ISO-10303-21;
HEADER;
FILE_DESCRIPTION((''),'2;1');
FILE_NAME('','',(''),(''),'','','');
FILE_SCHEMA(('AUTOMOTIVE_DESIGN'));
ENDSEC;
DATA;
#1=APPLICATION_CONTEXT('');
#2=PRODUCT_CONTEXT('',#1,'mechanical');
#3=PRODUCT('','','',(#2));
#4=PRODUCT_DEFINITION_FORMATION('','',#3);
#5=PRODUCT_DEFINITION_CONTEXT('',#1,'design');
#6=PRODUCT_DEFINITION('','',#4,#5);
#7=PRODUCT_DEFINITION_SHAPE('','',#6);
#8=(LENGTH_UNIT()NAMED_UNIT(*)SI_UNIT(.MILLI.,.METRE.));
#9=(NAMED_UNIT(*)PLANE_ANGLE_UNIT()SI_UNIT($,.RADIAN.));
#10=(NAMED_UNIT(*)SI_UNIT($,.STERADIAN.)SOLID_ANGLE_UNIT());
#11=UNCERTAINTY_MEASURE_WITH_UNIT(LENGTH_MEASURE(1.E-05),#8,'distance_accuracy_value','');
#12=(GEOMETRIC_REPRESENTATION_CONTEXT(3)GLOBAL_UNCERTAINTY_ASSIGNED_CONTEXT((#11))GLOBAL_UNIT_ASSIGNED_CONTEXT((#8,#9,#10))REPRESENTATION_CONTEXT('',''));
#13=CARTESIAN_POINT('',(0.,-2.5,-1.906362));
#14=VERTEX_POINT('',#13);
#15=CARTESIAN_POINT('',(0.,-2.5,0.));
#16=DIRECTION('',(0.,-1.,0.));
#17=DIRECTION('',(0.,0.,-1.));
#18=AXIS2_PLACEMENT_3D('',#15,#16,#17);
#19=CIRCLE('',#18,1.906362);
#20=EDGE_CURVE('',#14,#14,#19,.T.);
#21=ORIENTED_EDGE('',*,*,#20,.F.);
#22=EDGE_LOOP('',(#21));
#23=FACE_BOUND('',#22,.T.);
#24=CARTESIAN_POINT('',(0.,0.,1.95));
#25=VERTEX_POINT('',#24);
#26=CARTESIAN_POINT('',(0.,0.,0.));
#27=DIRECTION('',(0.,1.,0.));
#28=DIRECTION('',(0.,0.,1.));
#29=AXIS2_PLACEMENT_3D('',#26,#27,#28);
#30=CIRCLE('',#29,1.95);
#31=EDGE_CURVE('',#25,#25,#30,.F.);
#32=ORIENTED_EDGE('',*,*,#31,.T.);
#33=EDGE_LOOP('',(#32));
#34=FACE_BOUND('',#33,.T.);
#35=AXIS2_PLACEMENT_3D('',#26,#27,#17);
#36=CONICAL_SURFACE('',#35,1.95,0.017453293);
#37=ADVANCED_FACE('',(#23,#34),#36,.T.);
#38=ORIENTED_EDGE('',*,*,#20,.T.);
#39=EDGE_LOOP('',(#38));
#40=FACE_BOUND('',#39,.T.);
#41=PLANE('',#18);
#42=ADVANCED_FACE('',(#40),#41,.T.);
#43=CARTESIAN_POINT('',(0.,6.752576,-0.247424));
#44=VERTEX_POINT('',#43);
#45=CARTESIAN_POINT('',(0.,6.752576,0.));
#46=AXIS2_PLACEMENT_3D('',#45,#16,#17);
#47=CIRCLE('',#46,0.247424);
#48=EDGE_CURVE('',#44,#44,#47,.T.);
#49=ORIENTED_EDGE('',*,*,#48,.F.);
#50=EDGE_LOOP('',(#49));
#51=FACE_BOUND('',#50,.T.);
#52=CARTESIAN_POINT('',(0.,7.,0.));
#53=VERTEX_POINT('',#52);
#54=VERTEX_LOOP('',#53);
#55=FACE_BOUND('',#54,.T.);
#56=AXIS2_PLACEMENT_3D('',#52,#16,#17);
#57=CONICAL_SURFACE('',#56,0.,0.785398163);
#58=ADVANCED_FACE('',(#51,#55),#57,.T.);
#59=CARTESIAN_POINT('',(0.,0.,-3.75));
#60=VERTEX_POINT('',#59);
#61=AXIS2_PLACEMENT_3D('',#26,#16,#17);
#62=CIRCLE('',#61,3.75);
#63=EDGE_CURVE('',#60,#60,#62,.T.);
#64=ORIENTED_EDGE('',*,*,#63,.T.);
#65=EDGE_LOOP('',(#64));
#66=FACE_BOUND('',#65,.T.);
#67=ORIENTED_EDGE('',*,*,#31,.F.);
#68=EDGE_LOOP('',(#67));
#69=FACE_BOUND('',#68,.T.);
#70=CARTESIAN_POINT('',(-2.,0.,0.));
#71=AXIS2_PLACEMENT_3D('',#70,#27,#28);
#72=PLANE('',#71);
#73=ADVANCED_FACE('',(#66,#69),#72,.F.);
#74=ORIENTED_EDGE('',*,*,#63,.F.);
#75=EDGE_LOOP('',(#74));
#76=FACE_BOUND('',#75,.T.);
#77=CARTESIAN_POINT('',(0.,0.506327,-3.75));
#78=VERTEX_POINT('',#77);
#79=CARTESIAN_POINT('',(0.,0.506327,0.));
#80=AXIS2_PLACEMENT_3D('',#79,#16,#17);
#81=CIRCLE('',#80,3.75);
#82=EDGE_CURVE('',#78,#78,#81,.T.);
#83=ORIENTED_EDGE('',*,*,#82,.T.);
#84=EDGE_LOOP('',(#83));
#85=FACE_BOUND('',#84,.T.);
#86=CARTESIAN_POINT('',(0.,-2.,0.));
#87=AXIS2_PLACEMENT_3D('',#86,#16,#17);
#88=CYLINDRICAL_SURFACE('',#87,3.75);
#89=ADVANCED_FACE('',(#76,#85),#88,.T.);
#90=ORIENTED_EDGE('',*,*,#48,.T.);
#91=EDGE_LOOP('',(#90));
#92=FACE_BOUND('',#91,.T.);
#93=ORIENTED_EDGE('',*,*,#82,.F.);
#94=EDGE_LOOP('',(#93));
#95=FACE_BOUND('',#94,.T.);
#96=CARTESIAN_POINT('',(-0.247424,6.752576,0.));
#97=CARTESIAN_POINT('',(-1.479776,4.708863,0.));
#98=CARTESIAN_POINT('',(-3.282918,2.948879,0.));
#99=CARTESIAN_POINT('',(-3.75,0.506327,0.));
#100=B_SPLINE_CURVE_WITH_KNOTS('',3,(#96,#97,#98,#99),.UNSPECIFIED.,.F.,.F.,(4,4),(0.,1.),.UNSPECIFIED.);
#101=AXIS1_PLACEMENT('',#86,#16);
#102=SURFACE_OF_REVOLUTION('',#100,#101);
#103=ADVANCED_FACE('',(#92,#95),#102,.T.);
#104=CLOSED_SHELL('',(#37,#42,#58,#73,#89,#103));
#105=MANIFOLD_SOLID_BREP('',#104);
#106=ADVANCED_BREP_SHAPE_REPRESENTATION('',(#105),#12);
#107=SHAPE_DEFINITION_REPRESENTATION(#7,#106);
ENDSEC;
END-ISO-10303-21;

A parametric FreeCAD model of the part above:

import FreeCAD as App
import Part
import Sketcher

V = App.Vector
Q = App.Units.Quantity

doc = App.newDocument("Part")
body = doc.addObject("PartDesign::Body", "Body")

# Sketch on XY plane
sketch1 = body.newObject("Sketcher::SketchObject", "Sketch")
sketch1.AttachmentSupport = (doc.getObject("XY_Plane"), [""])
sketch1.MapMode = "FlatFace"
sketch1.addGeometry([
    Part.LineSegment(V(-2, -2, 0), V(0, -2, 0)),  # 0
    Part.LineSegment(V(0, -2, 0), V(0, 7, 0)),  # 1
    Part.LineSegment(V(0, 7, 0), V(-0.247424, 6.752576, 0)),  # 2
    Part.BSplineCurve([V(-0.247424, 6.752576, 0), V(-1.479776, 4.708863, 0), V(-3.282918, 2.948879, 0), V(-3.75, 0.506327, 0)], [4, 4], [0, 1], False, 3, [1, 1, 1, 1], False),  # 3
    Part.LineSegment(V(-3.75, 0.506327, 0), V(-3.75, 0, 0)),  # 4
    Part.LineSegment(V(-3.75, 0, 0), V(-2, 0, 0)),  # 5
    Part.LineSegment(V(-2, 0, 0), V(-2, -2, 0)),  # 6
], False)
sketch1.addConstraint([
    Sketcher.Constraint("Block", 3),
    Sketcher.Constraint("Coincident", 0, 2, 1, 1),
    Sketcher.Constraint("Coincident", 1, 2, 2, 1),
    Sketcher.Constraint("Coincident", 2, 2, 3, 1),
    Sketcher.Constraint("Coincident", 3, 2, 4, 1),
    Sketcher.Constraint("Coincident", 4, 2, 5, 1),
    Sketcher.Constraint("Coincident", 5, 2, 6, 1),
    Sketcher.Constraint("Coincident", 6, 2, 0, 1),
    Sketcher.Constraint("Horizontal", 0),
    Sketcher.Constraint("Vertical", 1),
    Sketcher.Constraint("Vertical", 4),
    Sketcher.Constraint("Horizontal", 5),
    Sketcher.Constraint("Vertical", 6),
    Sketcher.Constraint("PointOnObject", 0, 2, -2),
    Sketcher.Constraint("PointOnObject", 4, 2, -1),
    Sketcher.Constraint("Equal", 0, 6),
    Sketcher.Constraint("DistanceX", 0, 1, 0, 2, Q("2 mm")),
    Sketcher.Constraint("DistanceY", 1, 1, 1, 2, Q("9 mm")),
])
revolution = body.newObject("PartDesign::Revolution", "Revolution")
revolution.Profile = sketch1
revolution.ReferenceAxis = (sketch1, ["V_Axis"])
revolution.Angle = 360

# Sketch on XZ plane
sketch2 = body.newObject("Sketcher::SketchObject", "Sketch001")
sketch2.AttachmentSupport = (doc.getObject("XZ_Plane"), [""])
sketch2.MapMode = "FlatFace"
sketch2.AttachmentOffset = App.Placement(V(0, 0, 2), App.Rotation())
sketch2.addGeometry(Part.Circle(V(0, 0, 0), V(0, 0, 1), 2.1), False)
sketch2.addConstraint([
    Sketcher.Constraint("Coincident", 0, 3, -1, 1),
    Sketcher.Constraint("Diameter", 0, Q("4.2 mm")),
])
pocket1 = body.newObject("PartDesign::Pocket", "Pocket")
pocket1.Profile = sketch2
pocket1.Length = 2

# Sketch on XZ plane
sketch3 = body.newObject("Sketcher::SketchObject", "Sketch002")
sketch3.AttachmentSupport = (doc.getObject("XZ_Plane"), [""])
sketch3.MapMode = "FlatFace"
sketch3.addGeometry(Part.Circle(V(0, 0, 0), V(0, 0, 1), 1.9), False)
sketch3.addConstraint([
    Sketcher.Constraint("Coincident", 0, 3, -1, 1),
    Sketcher.Constraint("Diameter", 0, Q("3.9 mm")),
])
pad1 = body.newObject("PartDesign::Pad", "Pad")
pad1.Profile = sketch3
pad1.Length = 2.5
pad1.TaperAngle = -1

doc.recompute()
